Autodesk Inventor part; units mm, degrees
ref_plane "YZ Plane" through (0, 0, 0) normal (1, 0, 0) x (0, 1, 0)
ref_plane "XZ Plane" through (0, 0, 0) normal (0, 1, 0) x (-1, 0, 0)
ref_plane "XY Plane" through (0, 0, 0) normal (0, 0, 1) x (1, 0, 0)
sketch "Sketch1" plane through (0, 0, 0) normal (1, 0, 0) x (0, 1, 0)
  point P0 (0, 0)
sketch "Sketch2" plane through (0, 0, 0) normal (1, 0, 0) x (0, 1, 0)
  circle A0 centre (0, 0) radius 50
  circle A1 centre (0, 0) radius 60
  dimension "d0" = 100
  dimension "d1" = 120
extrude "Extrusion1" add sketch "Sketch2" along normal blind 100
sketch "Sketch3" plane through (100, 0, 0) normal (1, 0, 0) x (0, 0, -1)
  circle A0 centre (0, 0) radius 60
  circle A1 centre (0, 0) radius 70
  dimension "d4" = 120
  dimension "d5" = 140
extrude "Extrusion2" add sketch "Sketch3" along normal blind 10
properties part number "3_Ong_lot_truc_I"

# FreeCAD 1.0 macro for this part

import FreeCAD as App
import Part
import Sketcher
from FreeCAD import Vector
Q = App.Units.Quantity

doc = App.newDocument("Part")
body = doc.addObject("PartDesign::Body", "Body")
body.AllowCompound = True

# Sketch on YZ plane
sketch1 = body.newObject("Sketcher::SketchObject", "Sketch")
sketch1.AttachmentSupport = (doc.getObject("YZ_Plane"), [""])
sketch1.MapMode = "FlatFace"
sketch1.addGeometry(Part.Circle(Vector(0, 0, 0), Vector(0, 0, 1), 60), False)
sketch1.addGeometry(Part.Circle(Vector(0, 0, 0), Vector(0, 0, 1), 50), False)
sketch1.addConstraint(Sketcher.Constraint("Coincident", 0, 3, -1, 1))
sketch1.addConstraint(Sketcher.Constraint("Coincident", 1, 3, -1, 1))
sketch1.addConstraint(Sketcher.Constraint("Diameter", 1, Q("3.937 in")))
sketch1.addConstraint(Sketcher.Constraint("Diameter", 0, Q("4.7244 in")))
pad1 = body.newObject("PartDesign::Pad", "Pad")
pad1.Profile = sketch1
pad1.Length = Q("3.9370079 in")

# Sketch on YZ plane
sketch2 = body.newObject("Sketcher::SketchObject", "Sketch001")
sketch2.AttachmentSupport = (doc.getObject("YZ_Plane"), [""])
sketch2.MapMode = "FlatFace"
sketch2.AttachmentOffset = App.Placement(Vector(0, 0, 3.9370079 * 25.4), App.Rotation())
sketch2.addGeometry(Part.Circle(Vector(0, 0, 0), Vector(0, 0, 1), 70), False)
sketch2.addGeometry(Part.Circle(Vector(0, 0, 0), Vector(0, 0, 1), 60), False)
sketch2.addConstraint(Sketcher.Constraint("Coincident", 0, 3, -1, 1))
sketch2.addConstraint(Sketcher.Constraint("Coincident", 1, 3, -1, 1))
sketch2.addConstraint(Sketcher.Constraint("Diameter", 0, Q("5.5118 in")))
sketch2.addConstraint(Sketcher.Constraint("Diameter", 1, Q("4.7244 in")))
pad2 = body.newObject("PartDesign::Pad", "Pad001")
pad2.Profile = sketch2
pad2.Length = Q("0.3937008 in")

doc.recompute()
